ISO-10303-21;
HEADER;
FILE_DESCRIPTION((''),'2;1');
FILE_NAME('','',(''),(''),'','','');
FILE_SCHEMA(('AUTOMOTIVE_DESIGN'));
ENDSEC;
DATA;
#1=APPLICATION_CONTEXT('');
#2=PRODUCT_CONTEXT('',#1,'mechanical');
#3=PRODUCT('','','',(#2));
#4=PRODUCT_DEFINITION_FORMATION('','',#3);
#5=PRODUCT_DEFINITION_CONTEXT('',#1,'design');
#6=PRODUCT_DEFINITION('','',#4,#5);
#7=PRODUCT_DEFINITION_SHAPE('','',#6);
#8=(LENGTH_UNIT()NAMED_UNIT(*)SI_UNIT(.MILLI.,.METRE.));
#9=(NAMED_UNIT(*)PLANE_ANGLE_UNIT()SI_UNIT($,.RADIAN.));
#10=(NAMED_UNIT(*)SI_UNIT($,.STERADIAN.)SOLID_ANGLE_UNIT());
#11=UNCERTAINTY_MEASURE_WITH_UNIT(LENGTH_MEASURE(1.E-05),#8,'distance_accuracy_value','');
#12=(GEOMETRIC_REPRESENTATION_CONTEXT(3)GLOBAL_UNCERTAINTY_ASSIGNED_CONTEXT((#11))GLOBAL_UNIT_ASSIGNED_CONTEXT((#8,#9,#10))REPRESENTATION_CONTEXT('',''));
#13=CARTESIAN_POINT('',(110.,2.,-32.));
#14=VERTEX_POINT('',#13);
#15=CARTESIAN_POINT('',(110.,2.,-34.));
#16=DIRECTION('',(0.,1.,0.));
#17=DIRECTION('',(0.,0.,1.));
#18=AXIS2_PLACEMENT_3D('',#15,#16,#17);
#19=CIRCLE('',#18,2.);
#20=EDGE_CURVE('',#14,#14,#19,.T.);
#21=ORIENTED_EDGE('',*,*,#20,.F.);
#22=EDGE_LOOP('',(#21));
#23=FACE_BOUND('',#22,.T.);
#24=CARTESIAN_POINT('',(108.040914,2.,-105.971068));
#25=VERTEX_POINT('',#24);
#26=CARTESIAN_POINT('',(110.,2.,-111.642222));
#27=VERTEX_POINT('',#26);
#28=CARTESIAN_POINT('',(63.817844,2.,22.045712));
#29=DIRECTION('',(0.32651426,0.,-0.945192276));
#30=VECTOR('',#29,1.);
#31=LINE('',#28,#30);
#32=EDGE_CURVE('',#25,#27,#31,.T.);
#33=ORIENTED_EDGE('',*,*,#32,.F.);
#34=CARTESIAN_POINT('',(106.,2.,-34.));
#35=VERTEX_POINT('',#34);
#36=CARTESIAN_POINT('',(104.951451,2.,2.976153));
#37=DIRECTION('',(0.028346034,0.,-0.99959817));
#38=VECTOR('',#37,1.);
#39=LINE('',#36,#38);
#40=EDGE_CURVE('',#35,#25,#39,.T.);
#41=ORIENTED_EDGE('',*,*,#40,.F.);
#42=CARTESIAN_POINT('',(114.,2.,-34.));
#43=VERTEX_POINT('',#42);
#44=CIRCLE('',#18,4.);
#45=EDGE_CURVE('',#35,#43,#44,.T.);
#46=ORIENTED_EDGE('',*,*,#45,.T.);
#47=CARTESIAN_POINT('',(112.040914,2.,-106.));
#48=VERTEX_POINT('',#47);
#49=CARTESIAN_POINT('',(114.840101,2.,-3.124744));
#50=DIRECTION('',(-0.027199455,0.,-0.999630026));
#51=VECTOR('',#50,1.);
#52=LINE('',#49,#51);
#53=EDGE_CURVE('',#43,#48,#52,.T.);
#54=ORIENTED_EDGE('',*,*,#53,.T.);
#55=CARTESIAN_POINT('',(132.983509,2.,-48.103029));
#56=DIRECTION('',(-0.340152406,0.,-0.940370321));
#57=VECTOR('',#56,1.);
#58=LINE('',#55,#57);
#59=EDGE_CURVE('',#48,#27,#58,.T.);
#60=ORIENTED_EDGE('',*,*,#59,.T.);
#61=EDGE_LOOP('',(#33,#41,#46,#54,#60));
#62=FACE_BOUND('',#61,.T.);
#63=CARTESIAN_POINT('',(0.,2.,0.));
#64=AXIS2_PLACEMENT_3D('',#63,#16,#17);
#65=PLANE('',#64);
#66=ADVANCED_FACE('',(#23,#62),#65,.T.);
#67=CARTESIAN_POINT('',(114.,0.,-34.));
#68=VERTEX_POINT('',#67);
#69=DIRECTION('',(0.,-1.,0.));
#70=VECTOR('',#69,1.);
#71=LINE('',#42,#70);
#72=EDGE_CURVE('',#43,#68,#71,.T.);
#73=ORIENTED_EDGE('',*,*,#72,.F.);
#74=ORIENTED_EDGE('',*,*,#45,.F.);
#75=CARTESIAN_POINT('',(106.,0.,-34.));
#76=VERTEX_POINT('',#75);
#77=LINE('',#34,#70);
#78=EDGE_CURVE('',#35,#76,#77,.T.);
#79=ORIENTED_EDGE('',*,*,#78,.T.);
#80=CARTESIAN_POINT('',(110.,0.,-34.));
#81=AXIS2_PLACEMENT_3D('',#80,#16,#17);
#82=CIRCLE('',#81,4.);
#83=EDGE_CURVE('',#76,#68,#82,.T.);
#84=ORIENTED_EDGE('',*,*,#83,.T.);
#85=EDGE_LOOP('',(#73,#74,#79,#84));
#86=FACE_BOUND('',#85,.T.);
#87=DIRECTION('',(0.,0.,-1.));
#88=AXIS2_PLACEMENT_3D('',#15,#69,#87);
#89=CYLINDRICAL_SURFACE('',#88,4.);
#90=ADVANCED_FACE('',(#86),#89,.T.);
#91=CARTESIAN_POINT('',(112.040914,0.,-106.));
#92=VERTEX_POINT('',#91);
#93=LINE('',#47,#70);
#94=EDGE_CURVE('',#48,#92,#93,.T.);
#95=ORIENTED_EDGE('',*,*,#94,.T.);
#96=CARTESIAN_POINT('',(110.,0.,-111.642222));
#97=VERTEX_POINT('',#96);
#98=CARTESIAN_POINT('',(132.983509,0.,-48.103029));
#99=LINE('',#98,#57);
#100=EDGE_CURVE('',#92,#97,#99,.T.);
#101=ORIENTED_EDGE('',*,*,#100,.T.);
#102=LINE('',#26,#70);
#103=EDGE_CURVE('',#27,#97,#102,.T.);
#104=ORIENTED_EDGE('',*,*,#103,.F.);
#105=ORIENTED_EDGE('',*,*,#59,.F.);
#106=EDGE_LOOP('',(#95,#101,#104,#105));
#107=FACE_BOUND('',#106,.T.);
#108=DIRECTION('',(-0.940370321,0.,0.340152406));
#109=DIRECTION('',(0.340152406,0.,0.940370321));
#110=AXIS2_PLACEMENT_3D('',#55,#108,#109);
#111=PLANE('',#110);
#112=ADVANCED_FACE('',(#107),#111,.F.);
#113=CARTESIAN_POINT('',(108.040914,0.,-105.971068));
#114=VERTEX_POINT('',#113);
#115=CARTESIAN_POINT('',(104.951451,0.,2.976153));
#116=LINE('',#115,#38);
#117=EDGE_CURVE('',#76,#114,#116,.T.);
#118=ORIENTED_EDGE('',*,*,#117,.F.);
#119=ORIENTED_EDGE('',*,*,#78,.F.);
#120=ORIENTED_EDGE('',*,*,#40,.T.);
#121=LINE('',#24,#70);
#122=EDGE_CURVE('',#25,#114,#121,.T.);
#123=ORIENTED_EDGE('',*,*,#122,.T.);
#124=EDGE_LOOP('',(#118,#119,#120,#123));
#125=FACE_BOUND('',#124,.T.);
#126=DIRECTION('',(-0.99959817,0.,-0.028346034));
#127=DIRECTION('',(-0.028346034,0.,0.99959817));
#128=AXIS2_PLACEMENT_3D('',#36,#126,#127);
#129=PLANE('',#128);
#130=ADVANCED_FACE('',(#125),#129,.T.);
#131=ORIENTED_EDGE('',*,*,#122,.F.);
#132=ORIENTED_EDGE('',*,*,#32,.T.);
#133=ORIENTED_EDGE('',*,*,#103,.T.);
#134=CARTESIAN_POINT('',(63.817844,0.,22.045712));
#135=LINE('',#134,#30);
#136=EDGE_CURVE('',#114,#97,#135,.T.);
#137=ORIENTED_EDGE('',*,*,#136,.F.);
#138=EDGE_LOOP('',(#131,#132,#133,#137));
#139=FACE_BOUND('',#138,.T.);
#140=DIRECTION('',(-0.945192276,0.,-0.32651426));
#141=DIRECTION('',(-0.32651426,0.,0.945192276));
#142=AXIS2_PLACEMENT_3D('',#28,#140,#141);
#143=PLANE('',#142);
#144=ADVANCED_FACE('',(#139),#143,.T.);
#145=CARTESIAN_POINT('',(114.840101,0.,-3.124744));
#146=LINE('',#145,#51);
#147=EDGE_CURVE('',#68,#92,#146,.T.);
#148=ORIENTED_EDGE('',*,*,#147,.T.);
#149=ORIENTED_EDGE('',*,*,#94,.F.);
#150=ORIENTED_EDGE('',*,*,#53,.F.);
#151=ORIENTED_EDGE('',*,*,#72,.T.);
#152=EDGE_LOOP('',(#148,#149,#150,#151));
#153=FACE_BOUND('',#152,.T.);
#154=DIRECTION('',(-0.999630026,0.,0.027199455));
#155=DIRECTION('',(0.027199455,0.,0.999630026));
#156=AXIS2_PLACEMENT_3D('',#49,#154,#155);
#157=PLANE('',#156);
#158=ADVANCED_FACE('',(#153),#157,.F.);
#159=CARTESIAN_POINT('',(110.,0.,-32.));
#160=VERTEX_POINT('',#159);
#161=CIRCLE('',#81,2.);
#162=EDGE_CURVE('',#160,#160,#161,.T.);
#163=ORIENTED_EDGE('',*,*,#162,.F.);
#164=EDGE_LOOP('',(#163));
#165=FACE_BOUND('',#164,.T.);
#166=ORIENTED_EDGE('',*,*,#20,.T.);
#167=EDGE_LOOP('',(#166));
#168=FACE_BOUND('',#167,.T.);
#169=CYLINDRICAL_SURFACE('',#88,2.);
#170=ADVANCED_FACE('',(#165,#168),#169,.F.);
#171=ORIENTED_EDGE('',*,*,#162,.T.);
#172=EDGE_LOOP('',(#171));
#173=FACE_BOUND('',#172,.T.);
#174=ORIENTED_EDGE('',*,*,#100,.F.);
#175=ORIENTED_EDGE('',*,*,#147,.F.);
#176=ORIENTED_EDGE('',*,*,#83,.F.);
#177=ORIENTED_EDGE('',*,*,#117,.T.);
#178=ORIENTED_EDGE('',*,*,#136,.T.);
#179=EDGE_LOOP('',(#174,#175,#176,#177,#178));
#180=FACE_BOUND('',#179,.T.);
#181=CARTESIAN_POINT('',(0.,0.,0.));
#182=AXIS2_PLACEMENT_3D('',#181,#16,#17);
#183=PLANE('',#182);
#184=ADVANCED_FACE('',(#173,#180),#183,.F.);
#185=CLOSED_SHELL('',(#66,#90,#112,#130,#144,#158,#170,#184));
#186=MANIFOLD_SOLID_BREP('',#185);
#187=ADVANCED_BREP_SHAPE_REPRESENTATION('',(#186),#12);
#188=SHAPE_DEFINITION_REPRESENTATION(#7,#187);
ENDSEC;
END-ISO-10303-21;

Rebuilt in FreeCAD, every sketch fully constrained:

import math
import FreeCAD as App
import Part
import Sketcher
Q = App.Units.Quantity

doc = App.newDocument("Part")
body = doc.addObject("PartDesign::Body", "Body")

# Sketch on XZ plane
sketch1 = body.newObject("Sketcher::SketchObject", "Sketch")
sketch1.AttachmentSupport = (doc.getObject("XZ_Plane"), [""])
sketch1.MapMode = "FlatFace"
sketch1.addGeometry(Part.LineSegment(App.Vector(108.04, -105.97, 0), App.Vector(106.01, -34.23, 0)), False)
sketch1.addGeometry(Part.LineSegment(App.Vector(106.01, -34.23, 0), App.Vector(106, -34, 0)), False)
sketch1.addGeometry(Part.ArcOfCircle(Part.Circle(App.Vector(110, -34, 0), App.Vector(0, 0, 1), 4), math.radians(90), math.radians(180)), False)
sketch1.addGeometry(Part.ArcOfCircle(Part.Circle(App.Vector(110, -34, 0), App.Vector(0, 0, 1), 4), math.radians(0), math.radians(90)), False)
sketch1.addGeometry(Part.LineSegment(App.Vector(114, -34, 0), App.Vector(113.99, -34.22, 0)), False)
sketch1.addGeometry(Part.LineSegment(App.Vector(113.99, -34.22, 0), App.Vector(112.04, -106, 0)), False)
sketch1.addGeometry(Part.LineSegment(App.Vector(112.04, -106, 0), App.Vector(110, -111.64, 0)), False)
sketch1.addGeometry(Part.LineSegment(App.Vector(110, -111.64, 0), App.Vector(108.04, -105.97, 0)), False)
sketch1.addGeometry(Part.Circle(App.Vector(110, -34, 0), App.Vector(0, 0, 1), 2), False)
sketch1.addConstraint(Sketcher.Constraint("Coincident", 0, 2, 1, 1))
sketch1.addConstraint(Sketcher.Constraint("Coincident", 1, 2, 2, 2))
sketch1.addConstraint(Sketcher.Constraint("Tangent", 2, 1, 3, 2))
sketch1.addConstraint(Sketcher.Constraint("Coincident", 3, 1, 4, 1))
sketch1.addConstraint(Sketcher.Constraint("Coincident", 4, 2, 5, 1))
sketch1.addConstraint(Sketcher.Constraint("Coincident", 5, 2, 6, 1))
sketch1.addConstraint(Sketcher.Constraint("Coincident", 6, 2, 7, 1))
sketch1.addConstraint(Sketcher.Constraint("Coincident", 7, 2, 0, 1))
sketch1.addConstraint(Sketcher.Constraint("Coincident", 8, 3, 2, 3))
sketch1.addConstraint(Sketcher.Constraint("Equal", 2, 3))
sketch1.addConstraint(Sketcher.Constraint("Parallel", 0, 1))
sketch1.addConstraint(Sketcher.Constraint("Parallel", 4, 5))
sketch1.addConstraint(Sketcher.Constraint("Horizontal", 8, 3, 1, 2))
sketch1.addConstraint(Sketcher.Constraint("Horizontal", 1, 2, 3, 1))
sketch1.addConstraint(Sketcher.Constraint("Vertical", 8, 3, 2, 1))
sketch1.addConstraint(Sketcher.Constraint("Vertical", 2, 1, 6, 2))
sketch1.addConstraint(Sketcher.Constraint("Equal", 6, 7))
sketch1.addConstraint(Sketcher.Constraint("Diameter", 8, Q("4 mm")))
sketch1.addConstraint(Sketcher.Constraint("Radius", 2, Q("4 mm")))
sketch1.addConstraint(Sketcher.Constraint("Distance", 6, Q("6 mm")))
sketch1.addConstraint(Sketcher.Constraint("DistanceX", -1, 1, 2, 3, Q("110 mm")))
sketch1.addConstraint(Sketcher.Constraint("DistanceY", 2, 3, -1, 1, Q("34 mm")))
sketch1.addConstraint(Sketcher.Constraint("DistanceY", 5, 2, -1, 1, Q("106 mm")))
sketch1.addConstraint(Sketcher.Constraint("DistanceX", 7, 2, 5, 2, Q("4 mm")))
sketch1.addConstraint(Sketcher.Constraint("Distance", 0, Q("71.773232 mm")))
sketch1.addConstraint(Sketcher.Constraint("Distance", 1, Q("0.226768 mm")))
sketch1.addConstraint(Sketcher.Constraint("DistanceX", -1, 1, 4, 2, Q("113.994082 mm")))
pad1 = body.newObject("PartDesign::Pad", "Pad")
pad1.Profile = sketch1
pad1.Length = 2
pad1.Reversed = True

doc.recompute()
